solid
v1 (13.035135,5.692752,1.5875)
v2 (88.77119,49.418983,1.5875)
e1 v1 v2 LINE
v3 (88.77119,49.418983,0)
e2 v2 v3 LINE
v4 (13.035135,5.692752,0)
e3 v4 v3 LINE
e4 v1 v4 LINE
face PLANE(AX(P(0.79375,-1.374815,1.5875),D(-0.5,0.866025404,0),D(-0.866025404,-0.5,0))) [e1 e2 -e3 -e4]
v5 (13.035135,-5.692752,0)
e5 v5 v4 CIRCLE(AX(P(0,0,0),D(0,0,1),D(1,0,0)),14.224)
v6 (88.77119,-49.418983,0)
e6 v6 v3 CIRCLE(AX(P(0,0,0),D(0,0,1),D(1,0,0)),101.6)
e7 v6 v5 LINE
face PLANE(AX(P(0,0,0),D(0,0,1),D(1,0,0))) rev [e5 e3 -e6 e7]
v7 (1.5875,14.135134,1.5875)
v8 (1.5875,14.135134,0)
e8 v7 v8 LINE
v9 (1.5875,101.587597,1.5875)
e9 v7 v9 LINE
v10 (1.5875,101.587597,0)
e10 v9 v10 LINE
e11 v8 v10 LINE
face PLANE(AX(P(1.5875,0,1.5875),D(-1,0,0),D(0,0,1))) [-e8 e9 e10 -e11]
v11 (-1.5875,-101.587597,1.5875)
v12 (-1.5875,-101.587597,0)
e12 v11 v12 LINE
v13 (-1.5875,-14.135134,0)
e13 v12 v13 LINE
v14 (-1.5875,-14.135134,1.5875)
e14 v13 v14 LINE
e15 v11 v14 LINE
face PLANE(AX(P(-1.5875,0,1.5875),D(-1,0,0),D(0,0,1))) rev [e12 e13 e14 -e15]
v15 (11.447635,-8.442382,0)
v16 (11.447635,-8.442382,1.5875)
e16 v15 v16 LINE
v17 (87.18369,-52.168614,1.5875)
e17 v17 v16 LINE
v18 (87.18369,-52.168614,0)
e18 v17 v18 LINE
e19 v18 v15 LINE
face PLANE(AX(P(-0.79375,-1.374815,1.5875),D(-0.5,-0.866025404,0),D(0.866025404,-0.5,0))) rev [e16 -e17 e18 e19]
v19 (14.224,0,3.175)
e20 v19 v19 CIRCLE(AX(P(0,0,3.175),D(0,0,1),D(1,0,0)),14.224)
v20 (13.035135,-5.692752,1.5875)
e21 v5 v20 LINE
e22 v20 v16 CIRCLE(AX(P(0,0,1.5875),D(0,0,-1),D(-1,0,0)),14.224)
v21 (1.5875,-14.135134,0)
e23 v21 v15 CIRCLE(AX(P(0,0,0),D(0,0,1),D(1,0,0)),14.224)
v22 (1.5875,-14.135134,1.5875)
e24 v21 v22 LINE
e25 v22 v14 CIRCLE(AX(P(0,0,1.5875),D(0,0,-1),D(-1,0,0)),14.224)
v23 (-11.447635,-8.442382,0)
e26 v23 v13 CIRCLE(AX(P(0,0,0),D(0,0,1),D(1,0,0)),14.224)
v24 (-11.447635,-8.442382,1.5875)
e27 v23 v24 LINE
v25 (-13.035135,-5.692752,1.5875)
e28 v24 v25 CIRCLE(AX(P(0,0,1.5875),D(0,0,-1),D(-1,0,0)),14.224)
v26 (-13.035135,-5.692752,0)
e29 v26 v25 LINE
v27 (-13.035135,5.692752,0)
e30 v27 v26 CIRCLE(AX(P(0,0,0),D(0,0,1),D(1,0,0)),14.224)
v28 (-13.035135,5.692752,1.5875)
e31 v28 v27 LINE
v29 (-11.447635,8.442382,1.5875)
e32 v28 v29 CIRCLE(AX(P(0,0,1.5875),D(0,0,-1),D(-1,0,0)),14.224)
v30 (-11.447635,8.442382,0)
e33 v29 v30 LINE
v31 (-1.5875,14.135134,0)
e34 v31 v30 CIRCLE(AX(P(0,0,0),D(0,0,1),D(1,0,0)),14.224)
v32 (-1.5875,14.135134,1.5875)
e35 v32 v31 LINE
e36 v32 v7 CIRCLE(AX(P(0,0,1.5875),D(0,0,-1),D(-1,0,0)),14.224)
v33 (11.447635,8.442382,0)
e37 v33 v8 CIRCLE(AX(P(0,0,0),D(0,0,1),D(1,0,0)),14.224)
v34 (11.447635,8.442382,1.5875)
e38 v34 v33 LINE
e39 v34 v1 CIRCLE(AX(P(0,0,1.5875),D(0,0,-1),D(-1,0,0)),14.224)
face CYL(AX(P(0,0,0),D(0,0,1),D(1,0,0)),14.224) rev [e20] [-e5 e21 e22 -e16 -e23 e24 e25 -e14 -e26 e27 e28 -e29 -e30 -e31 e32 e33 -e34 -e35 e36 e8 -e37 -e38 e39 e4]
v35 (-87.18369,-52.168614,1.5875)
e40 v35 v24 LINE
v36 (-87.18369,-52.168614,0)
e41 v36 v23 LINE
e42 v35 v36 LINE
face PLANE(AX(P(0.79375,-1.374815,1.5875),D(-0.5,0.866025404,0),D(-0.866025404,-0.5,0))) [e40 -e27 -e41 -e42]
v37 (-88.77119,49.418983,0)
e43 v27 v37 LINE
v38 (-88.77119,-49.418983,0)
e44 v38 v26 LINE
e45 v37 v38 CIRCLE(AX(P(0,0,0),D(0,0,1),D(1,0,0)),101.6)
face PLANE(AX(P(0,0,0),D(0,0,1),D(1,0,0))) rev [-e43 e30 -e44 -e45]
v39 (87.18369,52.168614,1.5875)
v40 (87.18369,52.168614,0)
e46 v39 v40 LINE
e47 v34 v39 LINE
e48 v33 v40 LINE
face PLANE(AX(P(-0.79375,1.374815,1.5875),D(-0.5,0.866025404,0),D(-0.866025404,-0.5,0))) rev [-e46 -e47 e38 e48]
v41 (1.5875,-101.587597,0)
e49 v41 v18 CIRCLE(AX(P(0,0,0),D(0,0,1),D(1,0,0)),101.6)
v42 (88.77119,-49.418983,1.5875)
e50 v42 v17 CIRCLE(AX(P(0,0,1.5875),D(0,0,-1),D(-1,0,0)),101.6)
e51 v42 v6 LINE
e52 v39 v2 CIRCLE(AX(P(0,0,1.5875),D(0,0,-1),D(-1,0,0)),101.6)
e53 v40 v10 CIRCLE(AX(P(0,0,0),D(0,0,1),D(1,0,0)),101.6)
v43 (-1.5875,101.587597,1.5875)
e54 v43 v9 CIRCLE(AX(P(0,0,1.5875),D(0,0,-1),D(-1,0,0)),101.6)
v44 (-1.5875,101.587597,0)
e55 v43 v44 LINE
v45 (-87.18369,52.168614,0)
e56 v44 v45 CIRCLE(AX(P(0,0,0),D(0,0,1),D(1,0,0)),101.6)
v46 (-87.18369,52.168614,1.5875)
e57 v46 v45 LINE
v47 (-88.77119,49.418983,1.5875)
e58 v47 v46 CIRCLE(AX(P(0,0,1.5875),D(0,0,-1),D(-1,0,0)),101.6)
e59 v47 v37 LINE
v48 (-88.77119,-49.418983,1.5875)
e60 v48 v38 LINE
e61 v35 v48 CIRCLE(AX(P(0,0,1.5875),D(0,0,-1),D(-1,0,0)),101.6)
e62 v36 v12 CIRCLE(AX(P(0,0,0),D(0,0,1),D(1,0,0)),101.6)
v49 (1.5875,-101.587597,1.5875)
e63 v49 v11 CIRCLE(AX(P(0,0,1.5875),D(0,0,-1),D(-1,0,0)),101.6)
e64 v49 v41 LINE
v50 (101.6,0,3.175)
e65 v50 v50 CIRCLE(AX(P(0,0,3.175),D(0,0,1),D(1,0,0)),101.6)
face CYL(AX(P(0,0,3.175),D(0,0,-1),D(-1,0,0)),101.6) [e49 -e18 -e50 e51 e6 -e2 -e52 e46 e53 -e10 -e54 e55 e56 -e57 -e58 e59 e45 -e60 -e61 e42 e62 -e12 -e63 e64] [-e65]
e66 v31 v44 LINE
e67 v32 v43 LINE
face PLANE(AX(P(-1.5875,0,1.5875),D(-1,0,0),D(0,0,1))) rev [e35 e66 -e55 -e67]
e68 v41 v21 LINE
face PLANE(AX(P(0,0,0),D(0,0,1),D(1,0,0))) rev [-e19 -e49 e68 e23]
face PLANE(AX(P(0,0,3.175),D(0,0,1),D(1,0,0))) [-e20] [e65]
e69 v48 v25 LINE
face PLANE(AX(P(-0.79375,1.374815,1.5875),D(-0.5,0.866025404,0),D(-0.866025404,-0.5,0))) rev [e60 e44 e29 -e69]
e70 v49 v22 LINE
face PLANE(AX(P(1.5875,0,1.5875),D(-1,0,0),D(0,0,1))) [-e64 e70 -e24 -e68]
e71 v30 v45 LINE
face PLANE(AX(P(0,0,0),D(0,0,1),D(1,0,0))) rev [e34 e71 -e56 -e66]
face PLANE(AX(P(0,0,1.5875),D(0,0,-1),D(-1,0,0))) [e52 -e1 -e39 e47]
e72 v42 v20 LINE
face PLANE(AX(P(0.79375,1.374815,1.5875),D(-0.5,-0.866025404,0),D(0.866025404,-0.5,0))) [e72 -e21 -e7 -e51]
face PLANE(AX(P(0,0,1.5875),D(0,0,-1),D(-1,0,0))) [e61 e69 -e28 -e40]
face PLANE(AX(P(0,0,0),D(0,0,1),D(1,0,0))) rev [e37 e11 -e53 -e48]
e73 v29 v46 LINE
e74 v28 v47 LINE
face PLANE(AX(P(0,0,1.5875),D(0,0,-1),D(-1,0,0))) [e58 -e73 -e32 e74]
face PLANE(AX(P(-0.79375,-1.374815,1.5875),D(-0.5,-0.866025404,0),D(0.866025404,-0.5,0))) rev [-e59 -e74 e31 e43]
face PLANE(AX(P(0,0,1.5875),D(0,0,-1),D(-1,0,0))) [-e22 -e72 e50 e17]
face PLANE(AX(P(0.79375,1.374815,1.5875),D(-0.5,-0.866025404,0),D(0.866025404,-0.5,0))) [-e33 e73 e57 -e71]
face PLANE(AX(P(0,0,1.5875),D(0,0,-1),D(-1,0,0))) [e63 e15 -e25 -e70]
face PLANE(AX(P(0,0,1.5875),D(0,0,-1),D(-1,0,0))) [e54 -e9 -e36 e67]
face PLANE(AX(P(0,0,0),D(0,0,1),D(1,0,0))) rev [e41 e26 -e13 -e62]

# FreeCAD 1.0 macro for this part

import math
import FreeCAD as App
import Part
import Sketcher
Q = App.Units.Quantity

doc = App.newDocument("Part")
body = doc.addObject("PartDesign::Body", "Body")

sketch1 = body.newObject("Sketcher::SketchObject", "Sketch")
sketch1.AttachmentSupport = (doc.getObject("XY_Plane"), [""])
sketch1.MapMode = "FlatFace"
sketch1.addGeometry(Part.Circle(App.Vector(0, 0, 0), App.Vector(0, 0, 1), 102), False)
sketch1.addConstraint(Sketcher.Constraint("Coincident", 0, 3, -1, 1))
sketch1.addConstraint(Sketcher.Constraint("Diameter", 0, Q("8 in")))
pad1 = body.newObject("PartDesign::Pad", "Pad")
pad1.Profile = sketch1
pad1.Length = Q("0.125 in")

sketch2 = body.newObject("Sketcher::SketchObject", "Sketch001")
sketch2.AttachmentSupport = (doc.getObject("XY_Plane"), [""])
sketch2.MapMode = "FlatFace"
sketch2.addGeometry(Part.ArcOfCircle(Part.Circle(App.Vector(0, 0, 0), App.Vector(0, 0, 1), 101.6), math.radians(-30.9), math.radians(-29.1)), False)
sketch2.addGeometry(Part.LineSegment(App.Vector(87.2, -52.2, 0), App.Vector(1.6, -2.7, 0)), False)
sketch2.addGeometry(Part.LineSegment(App.Vector(1.6, -2.7, 0), App.Vector(1.6, -101.6, 0)), False)
sketch2.addGeometry(Part.ArcOfCircle(Part.Circle(App.Vector(0, 0, 0), App.Vector(0, 0, 1), 101.6), math.radians(-90.9), math.radians(-89.1)), False)
sketch2.addGeometry(Part.LineSegment(App.Vector(-1.6, -101.6, 0), App.Vector(-1.6, -2.7, 0)), False)
sketch2.addGeometry(Part.LineSegment(App.Vector(-1.6, -2.7, 0), App.Vector(-87.2, -52.2, 0)), False)
sketch2.addGeometry(Part.ArcOfCircle(Part.Circle(App.Vector(0, 0, 0), App.Vector(0, 0, 1), 101.6), math.radians(-150.9), math.radians(-149.1)), False)
sketch2.addGeometry(Part.LineSegment(App.Vector(-88.8, -49.4, 0), App.Vector(-3.2, 0, 0)), False)
sketch2.addGeometry(Part.LineSegment(App.Vector(-3.2, 0, 0), App.Vector(-88.8, 49.4, 0)), False)
sketch2.addGeometry(Part.ArcOfCircle(Part.Circle(App.Vector(0, 0, 0), App.Vector(0, 0, 1), 101.6), math.radians(149.1), math.radians(150.9)), False)
sketch2.addGeometry(Part.LineSegment(App.Vector(-87.2, 52.2, 0), App.Vector(-1.6, 2.7, 0)), False)
sketch2.addGeometry(Part.LineSegment(App.Vector(-1.6, 2.7, 0), App.Vector(-1.6, 101.6, 0)), False)
sketch2.addGeometry(Part.ArcOfCircle(Part.Circle(App.Vector(0, 0, 0), App.Vector(0, 0, 1), 101.6), math.radians(89.1), math.radians(90.9)), False)
sketch2.addGeometry(Part.LineSegment(App.Vector(1.6, 101.6, 0), App.Vector(1.6, 2.7, 0)), False)
sketch2.addGeometry(Part.LineSegment(App.Vector(1.6, 2.7, 0), App.Vector(87.2, 52.2, 0)), False)
sketch2.addGeometry(Part.ArcOfCircle(Part.Circle(App.Vector(0, 0, 0), App.Vector(0, 0, 1), 101.6), math.radians(29.1), math.radians(30.9)), False)
sketch2.addGeometry(Part.LineSegment(App.Vector(88.8, 49.4, 0), App.Vector(3.2, 0, 0)), False)
sketch2.addGeometry(Part.LineSegment(App.Vector(3.2, 0, 0), App.Vector(88.8, -49.4, 0)), False)
sketch2.addConstraint(Sketcher.Constraint("Coincident", 0, 1, 1, 1))
sketch2.addConstraint(Sketcher.Constraint("Coincident", 1, 2, 2, 1))
sketch2.addConstraint(Sketcher.Constraint("Coincident", 2, 2, 3, 2))
sketch2.addConstraint(Sketcher.Constraint("Coincident", 3, 1, 4, 1))
sketch2.addConstraint(Sketcher.Constraint("Coincident", 4, 2, 5, 1))
sketch2.addConstraint(Sketcher.Constraint("Coincident", 5, 2, 6, 2))
sketch2.addConstraint(Sketcher.Constraint("Coincident", 6, 1, 7, 1))
sketch2.addConstraint(Sketcher.Constraint("Coincident", 7, 2, 8, 1))
sketch2.addConstraint(Sketcher.Constraint("Coincident", 8, 2, 9, 2))
sketch2.addConstraint(Sketcher.Constraint("Coincident", 9, 1, 10, 1))
sketch2.addConstraint(Sketcher.Constraint("Coincident", 10, 2, 11, 1))
sketch2.addConstraint(Sketcher.Constraint("Coincident", 11, 2, 12, 2))
sketch2.addConstraint(Sketcher.Constraint("Coincident", 12, 1, 13, 1))
sketch2.addConstraint(Sketcher.Constraint("Coincident", 13, 2, 14, 1))
sketch2.addConstraint(Sketcher.Constraint("Coincident", 14, 2, 15, 2))
sketch2.addConstraint(Sketcher.Constraint("Coincident", 15, 1, 16, 1))
sketch2.addConstraint(Sketcher.Constraint("Coincident", 16, 2, 17, 1))
sketch2.addConstraint(Sketcher.Constraint("Coincident", 17, 2, 0, 2))
sketch2.addConstraint(Sketcher.Constraint("Vertical", 2))
sketch2.addConstraint(Sketcher.Constraint("Vertical", 4))
sketch2.addConstraint(Sketcher.Constraint("Vertical", 11))
sketch2.addConstraint(Sketcher.Constraint("Vertical", 13))
sketch2.addConstraint(Sketcher.Constraint("Coincident", 0, 3, -1, 1))
sketch2.addConstraint(Sketcher.Constraint("Coincident", 3, 3, -1, 1))
sketch2.addConstraint(Sketcher.Constraint("Coincident", 6, 3, -1, 1))
sketch2.addConstraint(Sketcher.Constraint("Coincident", 9, 3, -1, 1))
sketch2.addConstraint(Sketcher.Constraint("Coincident", 12, 3, -1, 1))
sketch2.addConstraint(Sketcher.Constraint("Coincident", 15, 3, -1, 1))
sketch2.addConstraint(Sketcher.Constraint("Equal", 0, 6))
sketch2.addConstraint(Sketcher.Constraint("Equal", 6, 9))
sketch2.addConstraint(Sketcher.Constraint("Equal", 3, 12))
sketch2.addConstraint(Sketcher.Constraint("Equal", 9, 15))
sketch2.addConstraint(Sketcher.Constraint("Symmetric", 1, 2, 10, 2, -1, 1))
sketch2.addConstraint(Sketcher.Constraint("Symmetric", 4, 2, 13, 2, -1, 1))
sketch2.addConstraint(Sketcher.Constraint("Symmetric", 7, 2, 16, 2, -1, 1))
sketch2.addConstraint(Sketcher.Constraint("Symmetric", 1, 2, 4, 2, -2))
sketch2.addConstraint(Sketcher.Constraint("PointOnObject", 7, 2, -1))
sketch2.addConstraint(Sketcher.Constraint("Parallel", 5, 7))
sketch2.addConstraint(Sketcher.Constraint("Parallel", 1, 8))
sketch2.addConstraint(Sketcher.Constraint("Parallel", 8, 10))
sketch2.addConstraint(Sketcher.Constraint("Parallel", 7, 14))
sketch2.addConstraint(Sketcher.Constraint("Parallel", 14, 16))
sketch2.addConstraint(Sketcher.Constraint("Parallel", 10, 17))
sketch2.addConstraint(Sketcher.Constraint("Horizontal", 0, 1, 5, 2))
sketch2.addConstraint(Sketcher.Constraint("Equal", 5, 7))
sketch2.addConstraint(Sketcher.Constraint("Radius", 0, Q("4.0000001 in")))
sketch2.addConstraint(Sketcher.Constraint("Radius", 3, Q("3.9999999 in")))
sketch2.addConstraint(Sketcher.Constraint("Angle", 1, Q("150 deg")))
sketch2.addConstraint(Sketcher.Constraint("DistanceX", -1, 1, 1, 2, Q("0.0625 in")))
sketch2.addConstraint(Sketcher.Constraint("DistanceX", 7, 2, -1, 1, Q("0.125 in")))
pocket1 = body.newObject("PartDesign::Pocket", "Pocket")
pocket1.Profile = sketch2
pocket1.Length = Q("0.0625 in")
pocket1.Reversed = True

sketch3 = body.newObject("Sketcher::SketchObject", "Sketch002")
sketch3.AttachmentSupport = (doc.getObject("XY_Plane"), [""])
sketch3.MapMode = "FlatFace"
sketch3.AttachmentOffset = App.Placement(App.Vector(0, 0, 0.125 * 25.4), App.Rotation())
sketch3.addGeometry(Part.Circle(App.Vector(0, 0, 0), App.Vector(0, 0, 1), 14), False)
sketch3.addConstraint(Sketcher.Constraint("Coincident", 0, 3, -1, 1))
sketch3.addConstraint(Sketcher.Constraint("Diameter", 0, Q("1.12 in")))
pocket2 = body.newObject("PartDesign::Pocket", "Pocket001")
pocket2.Profile = sketch3
pocket2.Type = "ThroughAll"

doc.recompute()
